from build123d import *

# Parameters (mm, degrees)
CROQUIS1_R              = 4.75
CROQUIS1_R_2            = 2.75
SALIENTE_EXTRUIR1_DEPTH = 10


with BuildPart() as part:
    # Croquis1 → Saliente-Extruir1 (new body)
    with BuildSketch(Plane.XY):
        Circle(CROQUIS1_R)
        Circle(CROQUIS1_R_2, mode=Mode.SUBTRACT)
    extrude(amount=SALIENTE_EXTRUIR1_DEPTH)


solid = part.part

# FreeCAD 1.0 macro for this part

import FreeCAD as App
import Part
import Sketcher

V = App.Vector

doc = App.newDocument("Part")
body = doc.addObject("PartDesign::Body", "Body")

sketch1 = body.newObject("Sketcher::SketchObject", "Sketch")
sketch1.AttachmentSupport = (doc.getObject("XY_Plane"), [""])
sketch1.MapMode = "FlatFace"
sketch1.addGeometry([
    Part.Circle(V(0, 0, 0), V(0, 0, 1), 4.8),
    Part.Circle(V(0, 0, 0), V(0, 0, 1), 2.8),
], False)
sketch1.addConstraint([
    Sketcher.Constraint("Coincident", 0, 3, -1, 1),
    Sketcher.Constraint("Coincident", 1, 3, -1, 1),
    Sketcher.Constraint("Diameter", 0, 9.5),
    Sketcher.Constraint("Diameter", 1, 5.5),
])
pad1 = body.newObject("PartDesign::Pad", "Pad")
pad1.Profile = sketch1
pad1.Length = 10

doc.recompute()
